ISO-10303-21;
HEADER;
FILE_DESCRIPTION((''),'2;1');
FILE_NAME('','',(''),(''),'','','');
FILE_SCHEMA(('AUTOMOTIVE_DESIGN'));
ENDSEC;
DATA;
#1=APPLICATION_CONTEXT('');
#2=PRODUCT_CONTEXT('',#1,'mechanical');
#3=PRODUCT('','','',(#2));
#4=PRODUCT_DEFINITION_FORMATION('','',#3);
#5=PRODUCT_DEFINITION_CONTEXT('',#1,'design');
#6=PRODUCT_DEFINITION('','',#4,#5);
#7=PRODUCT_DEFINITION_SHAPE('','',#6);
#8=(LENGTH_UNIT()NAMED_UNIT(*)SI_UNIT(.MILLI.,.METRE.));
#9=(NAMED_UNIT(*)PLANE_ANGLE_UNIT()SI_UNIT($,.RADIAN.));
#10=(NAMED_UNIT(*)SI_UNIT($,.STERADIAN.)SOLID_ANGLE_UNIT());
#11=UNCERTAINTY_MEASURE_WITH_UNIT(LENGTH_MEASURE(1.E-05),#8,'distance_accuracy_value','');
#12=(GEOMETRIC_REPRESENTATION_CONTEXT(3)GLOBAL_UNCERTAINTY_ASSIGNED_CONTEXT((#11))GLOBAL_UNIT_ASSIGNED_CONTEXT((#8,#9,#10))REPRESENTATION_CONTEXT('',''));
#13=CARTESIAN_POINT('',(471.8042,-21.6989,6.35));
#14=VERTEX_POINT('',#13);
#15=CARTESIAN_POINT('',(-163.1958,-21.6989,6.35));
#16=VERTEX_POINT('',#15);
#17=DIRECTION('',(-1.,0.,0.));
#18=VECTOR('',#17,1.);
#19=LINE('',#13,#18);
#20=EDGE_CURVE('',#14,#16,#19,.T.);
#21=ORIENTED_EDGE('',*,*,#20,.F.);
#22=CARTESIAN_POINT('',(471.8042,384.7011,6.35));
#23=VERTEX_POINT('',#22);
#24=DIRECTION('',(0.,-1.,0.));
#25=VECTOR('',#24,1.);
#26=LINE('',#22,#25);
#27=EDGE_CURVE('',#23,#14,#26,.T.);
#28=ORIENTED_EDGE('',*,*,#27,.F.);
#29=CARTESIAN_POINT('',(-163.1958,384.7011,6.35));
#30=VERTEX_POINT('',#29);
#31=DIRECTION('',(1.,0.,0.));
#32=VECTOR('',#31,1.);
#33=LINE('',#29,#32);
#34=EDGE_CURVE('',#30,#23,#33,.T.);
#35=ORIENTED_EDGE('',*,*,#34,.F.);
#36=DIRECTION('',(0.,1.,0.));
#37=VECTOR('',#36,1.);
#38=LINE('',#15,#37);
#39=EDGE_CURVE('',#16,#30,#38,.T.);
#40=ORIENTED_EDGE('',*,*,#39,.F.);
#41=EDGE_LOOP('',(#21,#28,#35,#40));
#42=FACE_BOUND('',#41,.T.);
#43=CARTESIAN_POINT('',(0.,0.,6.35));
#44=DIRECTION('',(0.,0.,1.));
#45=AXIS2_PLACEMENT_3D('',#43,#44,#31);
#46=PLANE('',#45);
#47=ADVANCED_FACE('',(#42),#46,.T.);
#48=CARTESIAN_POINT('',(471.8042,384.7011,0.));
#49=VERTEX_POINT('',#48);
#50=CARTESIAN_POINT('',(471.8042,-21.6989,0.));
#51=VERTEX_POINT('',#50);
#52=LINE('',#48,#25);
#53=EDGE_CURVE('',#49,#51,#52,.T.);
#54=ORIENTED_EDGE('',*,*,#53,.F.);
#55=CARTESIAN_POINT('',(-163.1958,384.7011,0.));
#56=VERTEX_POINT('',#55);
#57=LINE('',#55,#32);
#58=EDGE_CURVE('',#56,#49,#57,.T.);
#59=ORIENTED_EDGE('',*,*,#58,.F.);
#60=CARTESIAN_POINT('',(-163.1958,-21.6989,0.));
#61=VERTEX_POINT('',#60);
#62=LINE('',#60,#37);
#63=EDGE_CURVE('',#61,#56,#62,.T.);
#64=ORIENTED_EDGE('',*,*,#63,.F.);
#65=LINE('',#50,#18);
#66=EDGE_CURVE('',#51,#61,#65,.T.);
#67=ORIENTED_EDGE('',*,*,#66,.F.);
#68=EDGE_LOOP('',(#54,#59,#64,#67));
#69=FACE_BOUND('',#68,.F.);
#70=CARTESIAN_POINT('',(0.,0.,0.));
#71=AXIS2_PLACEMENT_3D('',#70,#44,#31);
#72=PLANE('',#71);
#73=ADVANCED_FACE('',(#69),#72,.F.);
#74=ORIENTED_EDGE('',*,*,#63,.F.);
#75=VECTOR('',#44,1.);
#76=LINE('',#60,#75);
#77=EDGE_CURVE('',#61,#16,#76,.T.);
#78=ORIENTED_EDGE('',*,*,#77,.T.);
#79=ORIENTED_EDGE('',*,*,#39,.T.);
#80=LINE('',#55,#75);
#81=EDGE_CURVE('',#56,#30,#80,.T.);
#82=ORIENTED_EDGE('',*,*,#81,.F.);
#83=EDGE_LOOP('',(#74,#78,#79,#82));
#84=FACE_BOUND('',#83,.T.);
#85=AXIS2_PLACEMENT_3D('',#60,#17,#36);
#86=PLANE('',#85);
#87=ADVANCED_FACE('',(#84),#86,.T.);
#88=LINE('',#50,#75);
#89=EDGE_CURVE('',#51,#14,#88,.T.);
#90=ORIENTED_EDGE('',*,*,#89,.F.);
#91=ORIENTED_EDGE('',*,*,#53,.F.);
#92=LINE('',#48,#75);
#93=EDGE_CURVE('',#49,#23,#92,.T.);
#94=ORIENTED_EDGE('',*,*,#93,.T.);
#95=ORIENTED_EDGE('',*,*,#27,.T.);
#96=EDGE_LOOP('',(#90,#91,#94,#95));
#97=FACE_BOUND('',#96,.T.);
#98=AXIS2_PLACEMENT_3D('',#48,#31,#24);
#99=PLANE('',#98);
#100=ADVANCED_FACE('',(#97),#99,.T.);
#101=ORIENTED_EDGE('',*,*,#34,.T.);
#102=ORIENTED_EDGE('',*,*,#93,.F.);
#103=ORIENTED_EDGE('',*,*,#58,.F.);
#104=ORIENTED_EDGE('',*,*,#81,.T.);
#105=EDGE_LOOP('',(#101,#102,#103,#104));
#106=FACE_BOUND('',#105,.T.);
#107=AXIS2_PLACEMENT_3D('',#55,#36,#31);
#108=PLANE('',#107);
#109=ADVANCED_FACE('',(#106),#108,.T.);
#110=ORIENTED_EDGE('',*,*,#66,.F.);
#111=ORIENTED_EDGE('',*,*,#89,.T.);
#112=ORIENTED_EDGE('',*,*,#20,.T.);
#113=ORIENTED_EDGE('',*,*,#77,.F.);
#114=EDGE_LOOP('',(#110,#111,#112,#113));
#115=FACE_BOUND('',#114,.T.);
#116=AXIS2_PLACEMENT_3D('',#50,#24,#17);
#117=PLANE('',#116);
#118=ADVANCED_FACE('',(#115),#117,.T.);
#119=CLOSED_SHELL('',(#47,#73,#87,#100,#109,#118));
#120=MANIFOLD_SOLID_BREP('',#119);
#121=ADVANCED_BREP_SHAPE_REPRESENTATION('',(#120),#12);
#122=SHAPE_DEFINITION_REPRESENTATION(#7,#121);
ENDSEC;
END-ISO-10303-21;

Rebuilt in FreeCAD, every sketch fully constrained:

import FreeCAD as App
import Part
import Sketcher

V = App.Vector
Q = App.Units.Quantity

doc = App.newDocument("Part")
body = doc.addObject("PartDesign::Body", "Body")

sketch1 = doc.addObject("Sketcher::SketchObject", "Sketch")
body.addObject(sketch1)
sketch1.AttachmentSupport = (doc.XY_Plane, [""])
sketch1.MapMode = "FlatFace"
sketch1.addGeometry([
    Part.LineSegment(V(-163, 385, 0), V(-163, -22, 0)),
    Part.LineSegment(V(-163, -22, 0), V(472, -22, 0)),
    Part.LineSegment(V(472, -22, 0), V(472, 385, 0)),
    Part.LineSegment(V(472, 385, 0), V(-163, 385, 0)),
], False)
sketch1.addConstraint([
    Sketcher.Constraint("Coincident", 0, 2, 1, 1),
    Sketcher.Constraint("Coincident", 1, 2, 2, 1),
    Sketcher.Constraint("Coincident", 2, 2, 3, 1),
    Sketcher.Constraint("Coincident", 3, 2, 0, 1),
    Sketcher.Constraint("Vertical", 0),
    Sketcher.Constraint("Horizontal", 1),
    Sketcher.Constraint("Vertical", 2),
    Sketcher.Constraint("Horizontal", 3),
    Sketcher.Constraint("DistanceX", 1, 1, 1, 2, Q("25 in")),
    Sketcher.Constraint("DistanceY", 0, 2, 0, 1, Q("16 in")),
    Sketcher.Constraint("DistanceX", 0, 2, -1, 1, Q("163.1958 mm")),
    Sketcher.Constraint("DistanceY", 0, 2, -1, 1, Q("0.8542913 in")),
])
pad1 = doc.addObject("PartDesign::Pad", "Pad")
body.addObject(pad1)
pad1.Profile = sketch1
pad1.Length = Q("0.25 in")

doc.recompute()
